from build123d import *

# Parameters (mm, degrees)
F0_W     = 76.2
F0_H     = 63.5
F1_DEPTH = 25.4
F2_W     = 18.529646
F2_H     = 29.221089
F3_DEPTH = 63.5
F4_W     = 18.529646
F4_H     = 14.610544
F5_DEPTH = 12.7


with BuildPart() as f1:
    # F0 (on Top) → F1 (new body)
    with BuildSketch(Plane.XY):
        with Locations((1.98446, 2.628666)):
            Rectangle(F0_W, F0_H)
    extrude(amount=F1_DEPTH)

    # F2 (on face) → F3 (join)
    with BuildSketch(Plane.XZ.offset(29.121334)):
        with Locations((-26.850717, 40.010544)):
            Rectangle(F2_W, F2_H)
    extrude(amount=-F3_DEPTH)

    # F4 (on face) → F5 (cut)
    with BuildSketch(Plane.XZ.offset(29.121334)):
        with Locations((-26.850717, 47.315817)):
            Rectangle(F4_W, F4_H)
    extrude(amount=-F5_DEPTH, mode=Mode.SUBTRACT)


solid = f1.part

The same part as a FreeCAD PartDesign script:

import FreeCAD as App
import Part
import Sketcher
from FreeCAD import Vector
Q = App.Units.Quantity


def add_polygon(sketch, points):
    """Adds a closed chain of lines whose ends are joined by coincident constraints."""
    first, n = sketch.GeometryCount, len(points)
    for a, b in zip(points, points[1:] + points[:1]):
        sketch.addGeometry(Part.LineSegment(App.Vector(*a, 0), App.Vector(*b, 0)), False)
    for i in range(n):
        sketch.addConstraint(Sketcher.Constraint("Coincident", first + i, 2, first + (i + 1) % n, 1))

doc = App.newDocument("Part")
body = doc.addObject("PartDesign::Body", "Body")

# Sketch on XY plane
sketch1 = body.newObject("Sketcher::SketchObject", "Sketch")
sketch1.AttachmentSupport = (doc.getObject("XY_Plane"), [""])
sketch1.MapMode = "FlatFace"
add_polygon(sketch1, [(-36.11554, 34.378666), (-36.11554, -29.121334), (40.08446, -29.121334), (40.08446, 34.378666)])  # lines 0-3
sketch1.addConstraint(Sketcher.Constraint("Vertical", 0))
sketch1.addConstraint(Sketcher.Constraint("Horizontal", 1))
sketch1.addConstraint(Sketcher.Constraint("Vertical", 2))
sketch1.addConstraint(Sketcher.Constraint("Horizontal", 3))
sketch1.addConstraint(Sketcher.Constraint("DistanceX", 1, 1, 1, 2, Q("3 in")))
sketch1.addConstraint(Sketcher.Constraint("DistanceY", 0, 2, 0, 1, Q("2.5 in")))
sketch1.addConstraint(Sketcher.Constraint("DistanceX", 0, 2, -1, 1, Q("36.11554 mm")))
sketch1.addConstraint(Sketcher.Constraint("DistanceY", 0, 2, -1, 1, Q("29.121334 mm")))
pad1 = body.newObject("PartDesign::Pad", "Pad")
pad1.Profile = sketch1
pad1.Length = Q("1 in")

# Sketch on XZ plane
sketch2 = body.newObject("Sketcher::SketchObject", "Sketch001")
sketch2.AttachmentSupport = (doc.getObject("XZ_Plane"), [""])
sketch2.MapMode = "FlatFace"
sketch2.AttachmentOffset = App.Placement(Vector(0, 0, 29.121334), App.Rotation())
add_polygon(sketch2, [(-36.11554, 54.621088), (-36.11554, 25.399999), (-17.585894, 25.399999), (-17.585894, 54.621088)])  # lines 0-3
sketch2.addConstraint(Sketcher.Constraint("Vertical", 0))
sketch2.addConstraint(Sketcher.Constraint("Horizontal", 1))
sketch2.addConstraint(Sketcher.Constraint("Vertical", 2))
sketch2.addConstraint(Sketcher.Constraint("Horizontal", 3))
sketch2.addConstraint(Sketcher.Constraint("DistanceY", -1, 1, 0, 2, Q("1 in")))
sketch2.addConstraint(Sketcher.Constraint("DistanceY", 0, 2, 0, 1, Q("29.221089 mm")))
sketch2.addConstraint(Sketcher.Constraint("DistanceX", 1, 1, 1, 2, Q("18.529646 mm")))
sketch2.addConstraint(Sketcher.Constraint("DistanceX", 0, 2, -1, 1, Q("36.11554 mm")))
pad2 = body.newObject("PartDesign::Pad", "Pad001")
pad2.Profile = sketch2
pad2.Length = Q("2.5 in")
pad2.Reversed = True

# Sketch on XZ plane
sketch3 = body.newObject("Sketcher::SketchObject", "Sketch002")
sketch3.AttachmentSupport = (doc.getObject("XZ_Plane"), [""])
sketch3.MapMode = "FlatFace"
sketch3.AttachmentOffset = App.Placement(Vector(0, 0, 29.121334), App.Rotation())
add_polygon(sketch3, [(-36.11554, 54.621089), (-36.11554, 40.010545), (-17.585894, 40.010545), (-17.585894, 54.621089)])  # lines 0-3
sketch3.addConstraint(Sketcher.Constraint("Vertical", 0))
sketch3.addConstraint(Sketcher.Constraint("Horizontal", 1))
sketch3.addConstraint(Sketcher.Constraint("Vertical", 2))
sketch3.addConstraint(Sketcher.Constraint("Horizontal", 3))
sketch3.addConstraint(Sketcher.Constraint("DistanceX", 1, 1, 1, 2, Q("18.529646 mm")))
sketch3.addConstraint(Sketcher.Constraint("DistanceY", 0, 2, 0, 1, Q("14.610544 mm")))
sketch3.addConstraint(Sketcher.Constraint("DistanceX", 0, 2, -1, 1, Q("36.11554 mm")))
sketch3.addConstraint(Sketcher.Constraint("DistanceY", -1, 1, 2, 2, Q("54.621089 mm")))
pocket1 = body.newObject("PartDesign::Pocket", "Pocket")
pocket1.Profile = sketch3
pocket1.Length = Q("0.5 in")

doc.recompute()
